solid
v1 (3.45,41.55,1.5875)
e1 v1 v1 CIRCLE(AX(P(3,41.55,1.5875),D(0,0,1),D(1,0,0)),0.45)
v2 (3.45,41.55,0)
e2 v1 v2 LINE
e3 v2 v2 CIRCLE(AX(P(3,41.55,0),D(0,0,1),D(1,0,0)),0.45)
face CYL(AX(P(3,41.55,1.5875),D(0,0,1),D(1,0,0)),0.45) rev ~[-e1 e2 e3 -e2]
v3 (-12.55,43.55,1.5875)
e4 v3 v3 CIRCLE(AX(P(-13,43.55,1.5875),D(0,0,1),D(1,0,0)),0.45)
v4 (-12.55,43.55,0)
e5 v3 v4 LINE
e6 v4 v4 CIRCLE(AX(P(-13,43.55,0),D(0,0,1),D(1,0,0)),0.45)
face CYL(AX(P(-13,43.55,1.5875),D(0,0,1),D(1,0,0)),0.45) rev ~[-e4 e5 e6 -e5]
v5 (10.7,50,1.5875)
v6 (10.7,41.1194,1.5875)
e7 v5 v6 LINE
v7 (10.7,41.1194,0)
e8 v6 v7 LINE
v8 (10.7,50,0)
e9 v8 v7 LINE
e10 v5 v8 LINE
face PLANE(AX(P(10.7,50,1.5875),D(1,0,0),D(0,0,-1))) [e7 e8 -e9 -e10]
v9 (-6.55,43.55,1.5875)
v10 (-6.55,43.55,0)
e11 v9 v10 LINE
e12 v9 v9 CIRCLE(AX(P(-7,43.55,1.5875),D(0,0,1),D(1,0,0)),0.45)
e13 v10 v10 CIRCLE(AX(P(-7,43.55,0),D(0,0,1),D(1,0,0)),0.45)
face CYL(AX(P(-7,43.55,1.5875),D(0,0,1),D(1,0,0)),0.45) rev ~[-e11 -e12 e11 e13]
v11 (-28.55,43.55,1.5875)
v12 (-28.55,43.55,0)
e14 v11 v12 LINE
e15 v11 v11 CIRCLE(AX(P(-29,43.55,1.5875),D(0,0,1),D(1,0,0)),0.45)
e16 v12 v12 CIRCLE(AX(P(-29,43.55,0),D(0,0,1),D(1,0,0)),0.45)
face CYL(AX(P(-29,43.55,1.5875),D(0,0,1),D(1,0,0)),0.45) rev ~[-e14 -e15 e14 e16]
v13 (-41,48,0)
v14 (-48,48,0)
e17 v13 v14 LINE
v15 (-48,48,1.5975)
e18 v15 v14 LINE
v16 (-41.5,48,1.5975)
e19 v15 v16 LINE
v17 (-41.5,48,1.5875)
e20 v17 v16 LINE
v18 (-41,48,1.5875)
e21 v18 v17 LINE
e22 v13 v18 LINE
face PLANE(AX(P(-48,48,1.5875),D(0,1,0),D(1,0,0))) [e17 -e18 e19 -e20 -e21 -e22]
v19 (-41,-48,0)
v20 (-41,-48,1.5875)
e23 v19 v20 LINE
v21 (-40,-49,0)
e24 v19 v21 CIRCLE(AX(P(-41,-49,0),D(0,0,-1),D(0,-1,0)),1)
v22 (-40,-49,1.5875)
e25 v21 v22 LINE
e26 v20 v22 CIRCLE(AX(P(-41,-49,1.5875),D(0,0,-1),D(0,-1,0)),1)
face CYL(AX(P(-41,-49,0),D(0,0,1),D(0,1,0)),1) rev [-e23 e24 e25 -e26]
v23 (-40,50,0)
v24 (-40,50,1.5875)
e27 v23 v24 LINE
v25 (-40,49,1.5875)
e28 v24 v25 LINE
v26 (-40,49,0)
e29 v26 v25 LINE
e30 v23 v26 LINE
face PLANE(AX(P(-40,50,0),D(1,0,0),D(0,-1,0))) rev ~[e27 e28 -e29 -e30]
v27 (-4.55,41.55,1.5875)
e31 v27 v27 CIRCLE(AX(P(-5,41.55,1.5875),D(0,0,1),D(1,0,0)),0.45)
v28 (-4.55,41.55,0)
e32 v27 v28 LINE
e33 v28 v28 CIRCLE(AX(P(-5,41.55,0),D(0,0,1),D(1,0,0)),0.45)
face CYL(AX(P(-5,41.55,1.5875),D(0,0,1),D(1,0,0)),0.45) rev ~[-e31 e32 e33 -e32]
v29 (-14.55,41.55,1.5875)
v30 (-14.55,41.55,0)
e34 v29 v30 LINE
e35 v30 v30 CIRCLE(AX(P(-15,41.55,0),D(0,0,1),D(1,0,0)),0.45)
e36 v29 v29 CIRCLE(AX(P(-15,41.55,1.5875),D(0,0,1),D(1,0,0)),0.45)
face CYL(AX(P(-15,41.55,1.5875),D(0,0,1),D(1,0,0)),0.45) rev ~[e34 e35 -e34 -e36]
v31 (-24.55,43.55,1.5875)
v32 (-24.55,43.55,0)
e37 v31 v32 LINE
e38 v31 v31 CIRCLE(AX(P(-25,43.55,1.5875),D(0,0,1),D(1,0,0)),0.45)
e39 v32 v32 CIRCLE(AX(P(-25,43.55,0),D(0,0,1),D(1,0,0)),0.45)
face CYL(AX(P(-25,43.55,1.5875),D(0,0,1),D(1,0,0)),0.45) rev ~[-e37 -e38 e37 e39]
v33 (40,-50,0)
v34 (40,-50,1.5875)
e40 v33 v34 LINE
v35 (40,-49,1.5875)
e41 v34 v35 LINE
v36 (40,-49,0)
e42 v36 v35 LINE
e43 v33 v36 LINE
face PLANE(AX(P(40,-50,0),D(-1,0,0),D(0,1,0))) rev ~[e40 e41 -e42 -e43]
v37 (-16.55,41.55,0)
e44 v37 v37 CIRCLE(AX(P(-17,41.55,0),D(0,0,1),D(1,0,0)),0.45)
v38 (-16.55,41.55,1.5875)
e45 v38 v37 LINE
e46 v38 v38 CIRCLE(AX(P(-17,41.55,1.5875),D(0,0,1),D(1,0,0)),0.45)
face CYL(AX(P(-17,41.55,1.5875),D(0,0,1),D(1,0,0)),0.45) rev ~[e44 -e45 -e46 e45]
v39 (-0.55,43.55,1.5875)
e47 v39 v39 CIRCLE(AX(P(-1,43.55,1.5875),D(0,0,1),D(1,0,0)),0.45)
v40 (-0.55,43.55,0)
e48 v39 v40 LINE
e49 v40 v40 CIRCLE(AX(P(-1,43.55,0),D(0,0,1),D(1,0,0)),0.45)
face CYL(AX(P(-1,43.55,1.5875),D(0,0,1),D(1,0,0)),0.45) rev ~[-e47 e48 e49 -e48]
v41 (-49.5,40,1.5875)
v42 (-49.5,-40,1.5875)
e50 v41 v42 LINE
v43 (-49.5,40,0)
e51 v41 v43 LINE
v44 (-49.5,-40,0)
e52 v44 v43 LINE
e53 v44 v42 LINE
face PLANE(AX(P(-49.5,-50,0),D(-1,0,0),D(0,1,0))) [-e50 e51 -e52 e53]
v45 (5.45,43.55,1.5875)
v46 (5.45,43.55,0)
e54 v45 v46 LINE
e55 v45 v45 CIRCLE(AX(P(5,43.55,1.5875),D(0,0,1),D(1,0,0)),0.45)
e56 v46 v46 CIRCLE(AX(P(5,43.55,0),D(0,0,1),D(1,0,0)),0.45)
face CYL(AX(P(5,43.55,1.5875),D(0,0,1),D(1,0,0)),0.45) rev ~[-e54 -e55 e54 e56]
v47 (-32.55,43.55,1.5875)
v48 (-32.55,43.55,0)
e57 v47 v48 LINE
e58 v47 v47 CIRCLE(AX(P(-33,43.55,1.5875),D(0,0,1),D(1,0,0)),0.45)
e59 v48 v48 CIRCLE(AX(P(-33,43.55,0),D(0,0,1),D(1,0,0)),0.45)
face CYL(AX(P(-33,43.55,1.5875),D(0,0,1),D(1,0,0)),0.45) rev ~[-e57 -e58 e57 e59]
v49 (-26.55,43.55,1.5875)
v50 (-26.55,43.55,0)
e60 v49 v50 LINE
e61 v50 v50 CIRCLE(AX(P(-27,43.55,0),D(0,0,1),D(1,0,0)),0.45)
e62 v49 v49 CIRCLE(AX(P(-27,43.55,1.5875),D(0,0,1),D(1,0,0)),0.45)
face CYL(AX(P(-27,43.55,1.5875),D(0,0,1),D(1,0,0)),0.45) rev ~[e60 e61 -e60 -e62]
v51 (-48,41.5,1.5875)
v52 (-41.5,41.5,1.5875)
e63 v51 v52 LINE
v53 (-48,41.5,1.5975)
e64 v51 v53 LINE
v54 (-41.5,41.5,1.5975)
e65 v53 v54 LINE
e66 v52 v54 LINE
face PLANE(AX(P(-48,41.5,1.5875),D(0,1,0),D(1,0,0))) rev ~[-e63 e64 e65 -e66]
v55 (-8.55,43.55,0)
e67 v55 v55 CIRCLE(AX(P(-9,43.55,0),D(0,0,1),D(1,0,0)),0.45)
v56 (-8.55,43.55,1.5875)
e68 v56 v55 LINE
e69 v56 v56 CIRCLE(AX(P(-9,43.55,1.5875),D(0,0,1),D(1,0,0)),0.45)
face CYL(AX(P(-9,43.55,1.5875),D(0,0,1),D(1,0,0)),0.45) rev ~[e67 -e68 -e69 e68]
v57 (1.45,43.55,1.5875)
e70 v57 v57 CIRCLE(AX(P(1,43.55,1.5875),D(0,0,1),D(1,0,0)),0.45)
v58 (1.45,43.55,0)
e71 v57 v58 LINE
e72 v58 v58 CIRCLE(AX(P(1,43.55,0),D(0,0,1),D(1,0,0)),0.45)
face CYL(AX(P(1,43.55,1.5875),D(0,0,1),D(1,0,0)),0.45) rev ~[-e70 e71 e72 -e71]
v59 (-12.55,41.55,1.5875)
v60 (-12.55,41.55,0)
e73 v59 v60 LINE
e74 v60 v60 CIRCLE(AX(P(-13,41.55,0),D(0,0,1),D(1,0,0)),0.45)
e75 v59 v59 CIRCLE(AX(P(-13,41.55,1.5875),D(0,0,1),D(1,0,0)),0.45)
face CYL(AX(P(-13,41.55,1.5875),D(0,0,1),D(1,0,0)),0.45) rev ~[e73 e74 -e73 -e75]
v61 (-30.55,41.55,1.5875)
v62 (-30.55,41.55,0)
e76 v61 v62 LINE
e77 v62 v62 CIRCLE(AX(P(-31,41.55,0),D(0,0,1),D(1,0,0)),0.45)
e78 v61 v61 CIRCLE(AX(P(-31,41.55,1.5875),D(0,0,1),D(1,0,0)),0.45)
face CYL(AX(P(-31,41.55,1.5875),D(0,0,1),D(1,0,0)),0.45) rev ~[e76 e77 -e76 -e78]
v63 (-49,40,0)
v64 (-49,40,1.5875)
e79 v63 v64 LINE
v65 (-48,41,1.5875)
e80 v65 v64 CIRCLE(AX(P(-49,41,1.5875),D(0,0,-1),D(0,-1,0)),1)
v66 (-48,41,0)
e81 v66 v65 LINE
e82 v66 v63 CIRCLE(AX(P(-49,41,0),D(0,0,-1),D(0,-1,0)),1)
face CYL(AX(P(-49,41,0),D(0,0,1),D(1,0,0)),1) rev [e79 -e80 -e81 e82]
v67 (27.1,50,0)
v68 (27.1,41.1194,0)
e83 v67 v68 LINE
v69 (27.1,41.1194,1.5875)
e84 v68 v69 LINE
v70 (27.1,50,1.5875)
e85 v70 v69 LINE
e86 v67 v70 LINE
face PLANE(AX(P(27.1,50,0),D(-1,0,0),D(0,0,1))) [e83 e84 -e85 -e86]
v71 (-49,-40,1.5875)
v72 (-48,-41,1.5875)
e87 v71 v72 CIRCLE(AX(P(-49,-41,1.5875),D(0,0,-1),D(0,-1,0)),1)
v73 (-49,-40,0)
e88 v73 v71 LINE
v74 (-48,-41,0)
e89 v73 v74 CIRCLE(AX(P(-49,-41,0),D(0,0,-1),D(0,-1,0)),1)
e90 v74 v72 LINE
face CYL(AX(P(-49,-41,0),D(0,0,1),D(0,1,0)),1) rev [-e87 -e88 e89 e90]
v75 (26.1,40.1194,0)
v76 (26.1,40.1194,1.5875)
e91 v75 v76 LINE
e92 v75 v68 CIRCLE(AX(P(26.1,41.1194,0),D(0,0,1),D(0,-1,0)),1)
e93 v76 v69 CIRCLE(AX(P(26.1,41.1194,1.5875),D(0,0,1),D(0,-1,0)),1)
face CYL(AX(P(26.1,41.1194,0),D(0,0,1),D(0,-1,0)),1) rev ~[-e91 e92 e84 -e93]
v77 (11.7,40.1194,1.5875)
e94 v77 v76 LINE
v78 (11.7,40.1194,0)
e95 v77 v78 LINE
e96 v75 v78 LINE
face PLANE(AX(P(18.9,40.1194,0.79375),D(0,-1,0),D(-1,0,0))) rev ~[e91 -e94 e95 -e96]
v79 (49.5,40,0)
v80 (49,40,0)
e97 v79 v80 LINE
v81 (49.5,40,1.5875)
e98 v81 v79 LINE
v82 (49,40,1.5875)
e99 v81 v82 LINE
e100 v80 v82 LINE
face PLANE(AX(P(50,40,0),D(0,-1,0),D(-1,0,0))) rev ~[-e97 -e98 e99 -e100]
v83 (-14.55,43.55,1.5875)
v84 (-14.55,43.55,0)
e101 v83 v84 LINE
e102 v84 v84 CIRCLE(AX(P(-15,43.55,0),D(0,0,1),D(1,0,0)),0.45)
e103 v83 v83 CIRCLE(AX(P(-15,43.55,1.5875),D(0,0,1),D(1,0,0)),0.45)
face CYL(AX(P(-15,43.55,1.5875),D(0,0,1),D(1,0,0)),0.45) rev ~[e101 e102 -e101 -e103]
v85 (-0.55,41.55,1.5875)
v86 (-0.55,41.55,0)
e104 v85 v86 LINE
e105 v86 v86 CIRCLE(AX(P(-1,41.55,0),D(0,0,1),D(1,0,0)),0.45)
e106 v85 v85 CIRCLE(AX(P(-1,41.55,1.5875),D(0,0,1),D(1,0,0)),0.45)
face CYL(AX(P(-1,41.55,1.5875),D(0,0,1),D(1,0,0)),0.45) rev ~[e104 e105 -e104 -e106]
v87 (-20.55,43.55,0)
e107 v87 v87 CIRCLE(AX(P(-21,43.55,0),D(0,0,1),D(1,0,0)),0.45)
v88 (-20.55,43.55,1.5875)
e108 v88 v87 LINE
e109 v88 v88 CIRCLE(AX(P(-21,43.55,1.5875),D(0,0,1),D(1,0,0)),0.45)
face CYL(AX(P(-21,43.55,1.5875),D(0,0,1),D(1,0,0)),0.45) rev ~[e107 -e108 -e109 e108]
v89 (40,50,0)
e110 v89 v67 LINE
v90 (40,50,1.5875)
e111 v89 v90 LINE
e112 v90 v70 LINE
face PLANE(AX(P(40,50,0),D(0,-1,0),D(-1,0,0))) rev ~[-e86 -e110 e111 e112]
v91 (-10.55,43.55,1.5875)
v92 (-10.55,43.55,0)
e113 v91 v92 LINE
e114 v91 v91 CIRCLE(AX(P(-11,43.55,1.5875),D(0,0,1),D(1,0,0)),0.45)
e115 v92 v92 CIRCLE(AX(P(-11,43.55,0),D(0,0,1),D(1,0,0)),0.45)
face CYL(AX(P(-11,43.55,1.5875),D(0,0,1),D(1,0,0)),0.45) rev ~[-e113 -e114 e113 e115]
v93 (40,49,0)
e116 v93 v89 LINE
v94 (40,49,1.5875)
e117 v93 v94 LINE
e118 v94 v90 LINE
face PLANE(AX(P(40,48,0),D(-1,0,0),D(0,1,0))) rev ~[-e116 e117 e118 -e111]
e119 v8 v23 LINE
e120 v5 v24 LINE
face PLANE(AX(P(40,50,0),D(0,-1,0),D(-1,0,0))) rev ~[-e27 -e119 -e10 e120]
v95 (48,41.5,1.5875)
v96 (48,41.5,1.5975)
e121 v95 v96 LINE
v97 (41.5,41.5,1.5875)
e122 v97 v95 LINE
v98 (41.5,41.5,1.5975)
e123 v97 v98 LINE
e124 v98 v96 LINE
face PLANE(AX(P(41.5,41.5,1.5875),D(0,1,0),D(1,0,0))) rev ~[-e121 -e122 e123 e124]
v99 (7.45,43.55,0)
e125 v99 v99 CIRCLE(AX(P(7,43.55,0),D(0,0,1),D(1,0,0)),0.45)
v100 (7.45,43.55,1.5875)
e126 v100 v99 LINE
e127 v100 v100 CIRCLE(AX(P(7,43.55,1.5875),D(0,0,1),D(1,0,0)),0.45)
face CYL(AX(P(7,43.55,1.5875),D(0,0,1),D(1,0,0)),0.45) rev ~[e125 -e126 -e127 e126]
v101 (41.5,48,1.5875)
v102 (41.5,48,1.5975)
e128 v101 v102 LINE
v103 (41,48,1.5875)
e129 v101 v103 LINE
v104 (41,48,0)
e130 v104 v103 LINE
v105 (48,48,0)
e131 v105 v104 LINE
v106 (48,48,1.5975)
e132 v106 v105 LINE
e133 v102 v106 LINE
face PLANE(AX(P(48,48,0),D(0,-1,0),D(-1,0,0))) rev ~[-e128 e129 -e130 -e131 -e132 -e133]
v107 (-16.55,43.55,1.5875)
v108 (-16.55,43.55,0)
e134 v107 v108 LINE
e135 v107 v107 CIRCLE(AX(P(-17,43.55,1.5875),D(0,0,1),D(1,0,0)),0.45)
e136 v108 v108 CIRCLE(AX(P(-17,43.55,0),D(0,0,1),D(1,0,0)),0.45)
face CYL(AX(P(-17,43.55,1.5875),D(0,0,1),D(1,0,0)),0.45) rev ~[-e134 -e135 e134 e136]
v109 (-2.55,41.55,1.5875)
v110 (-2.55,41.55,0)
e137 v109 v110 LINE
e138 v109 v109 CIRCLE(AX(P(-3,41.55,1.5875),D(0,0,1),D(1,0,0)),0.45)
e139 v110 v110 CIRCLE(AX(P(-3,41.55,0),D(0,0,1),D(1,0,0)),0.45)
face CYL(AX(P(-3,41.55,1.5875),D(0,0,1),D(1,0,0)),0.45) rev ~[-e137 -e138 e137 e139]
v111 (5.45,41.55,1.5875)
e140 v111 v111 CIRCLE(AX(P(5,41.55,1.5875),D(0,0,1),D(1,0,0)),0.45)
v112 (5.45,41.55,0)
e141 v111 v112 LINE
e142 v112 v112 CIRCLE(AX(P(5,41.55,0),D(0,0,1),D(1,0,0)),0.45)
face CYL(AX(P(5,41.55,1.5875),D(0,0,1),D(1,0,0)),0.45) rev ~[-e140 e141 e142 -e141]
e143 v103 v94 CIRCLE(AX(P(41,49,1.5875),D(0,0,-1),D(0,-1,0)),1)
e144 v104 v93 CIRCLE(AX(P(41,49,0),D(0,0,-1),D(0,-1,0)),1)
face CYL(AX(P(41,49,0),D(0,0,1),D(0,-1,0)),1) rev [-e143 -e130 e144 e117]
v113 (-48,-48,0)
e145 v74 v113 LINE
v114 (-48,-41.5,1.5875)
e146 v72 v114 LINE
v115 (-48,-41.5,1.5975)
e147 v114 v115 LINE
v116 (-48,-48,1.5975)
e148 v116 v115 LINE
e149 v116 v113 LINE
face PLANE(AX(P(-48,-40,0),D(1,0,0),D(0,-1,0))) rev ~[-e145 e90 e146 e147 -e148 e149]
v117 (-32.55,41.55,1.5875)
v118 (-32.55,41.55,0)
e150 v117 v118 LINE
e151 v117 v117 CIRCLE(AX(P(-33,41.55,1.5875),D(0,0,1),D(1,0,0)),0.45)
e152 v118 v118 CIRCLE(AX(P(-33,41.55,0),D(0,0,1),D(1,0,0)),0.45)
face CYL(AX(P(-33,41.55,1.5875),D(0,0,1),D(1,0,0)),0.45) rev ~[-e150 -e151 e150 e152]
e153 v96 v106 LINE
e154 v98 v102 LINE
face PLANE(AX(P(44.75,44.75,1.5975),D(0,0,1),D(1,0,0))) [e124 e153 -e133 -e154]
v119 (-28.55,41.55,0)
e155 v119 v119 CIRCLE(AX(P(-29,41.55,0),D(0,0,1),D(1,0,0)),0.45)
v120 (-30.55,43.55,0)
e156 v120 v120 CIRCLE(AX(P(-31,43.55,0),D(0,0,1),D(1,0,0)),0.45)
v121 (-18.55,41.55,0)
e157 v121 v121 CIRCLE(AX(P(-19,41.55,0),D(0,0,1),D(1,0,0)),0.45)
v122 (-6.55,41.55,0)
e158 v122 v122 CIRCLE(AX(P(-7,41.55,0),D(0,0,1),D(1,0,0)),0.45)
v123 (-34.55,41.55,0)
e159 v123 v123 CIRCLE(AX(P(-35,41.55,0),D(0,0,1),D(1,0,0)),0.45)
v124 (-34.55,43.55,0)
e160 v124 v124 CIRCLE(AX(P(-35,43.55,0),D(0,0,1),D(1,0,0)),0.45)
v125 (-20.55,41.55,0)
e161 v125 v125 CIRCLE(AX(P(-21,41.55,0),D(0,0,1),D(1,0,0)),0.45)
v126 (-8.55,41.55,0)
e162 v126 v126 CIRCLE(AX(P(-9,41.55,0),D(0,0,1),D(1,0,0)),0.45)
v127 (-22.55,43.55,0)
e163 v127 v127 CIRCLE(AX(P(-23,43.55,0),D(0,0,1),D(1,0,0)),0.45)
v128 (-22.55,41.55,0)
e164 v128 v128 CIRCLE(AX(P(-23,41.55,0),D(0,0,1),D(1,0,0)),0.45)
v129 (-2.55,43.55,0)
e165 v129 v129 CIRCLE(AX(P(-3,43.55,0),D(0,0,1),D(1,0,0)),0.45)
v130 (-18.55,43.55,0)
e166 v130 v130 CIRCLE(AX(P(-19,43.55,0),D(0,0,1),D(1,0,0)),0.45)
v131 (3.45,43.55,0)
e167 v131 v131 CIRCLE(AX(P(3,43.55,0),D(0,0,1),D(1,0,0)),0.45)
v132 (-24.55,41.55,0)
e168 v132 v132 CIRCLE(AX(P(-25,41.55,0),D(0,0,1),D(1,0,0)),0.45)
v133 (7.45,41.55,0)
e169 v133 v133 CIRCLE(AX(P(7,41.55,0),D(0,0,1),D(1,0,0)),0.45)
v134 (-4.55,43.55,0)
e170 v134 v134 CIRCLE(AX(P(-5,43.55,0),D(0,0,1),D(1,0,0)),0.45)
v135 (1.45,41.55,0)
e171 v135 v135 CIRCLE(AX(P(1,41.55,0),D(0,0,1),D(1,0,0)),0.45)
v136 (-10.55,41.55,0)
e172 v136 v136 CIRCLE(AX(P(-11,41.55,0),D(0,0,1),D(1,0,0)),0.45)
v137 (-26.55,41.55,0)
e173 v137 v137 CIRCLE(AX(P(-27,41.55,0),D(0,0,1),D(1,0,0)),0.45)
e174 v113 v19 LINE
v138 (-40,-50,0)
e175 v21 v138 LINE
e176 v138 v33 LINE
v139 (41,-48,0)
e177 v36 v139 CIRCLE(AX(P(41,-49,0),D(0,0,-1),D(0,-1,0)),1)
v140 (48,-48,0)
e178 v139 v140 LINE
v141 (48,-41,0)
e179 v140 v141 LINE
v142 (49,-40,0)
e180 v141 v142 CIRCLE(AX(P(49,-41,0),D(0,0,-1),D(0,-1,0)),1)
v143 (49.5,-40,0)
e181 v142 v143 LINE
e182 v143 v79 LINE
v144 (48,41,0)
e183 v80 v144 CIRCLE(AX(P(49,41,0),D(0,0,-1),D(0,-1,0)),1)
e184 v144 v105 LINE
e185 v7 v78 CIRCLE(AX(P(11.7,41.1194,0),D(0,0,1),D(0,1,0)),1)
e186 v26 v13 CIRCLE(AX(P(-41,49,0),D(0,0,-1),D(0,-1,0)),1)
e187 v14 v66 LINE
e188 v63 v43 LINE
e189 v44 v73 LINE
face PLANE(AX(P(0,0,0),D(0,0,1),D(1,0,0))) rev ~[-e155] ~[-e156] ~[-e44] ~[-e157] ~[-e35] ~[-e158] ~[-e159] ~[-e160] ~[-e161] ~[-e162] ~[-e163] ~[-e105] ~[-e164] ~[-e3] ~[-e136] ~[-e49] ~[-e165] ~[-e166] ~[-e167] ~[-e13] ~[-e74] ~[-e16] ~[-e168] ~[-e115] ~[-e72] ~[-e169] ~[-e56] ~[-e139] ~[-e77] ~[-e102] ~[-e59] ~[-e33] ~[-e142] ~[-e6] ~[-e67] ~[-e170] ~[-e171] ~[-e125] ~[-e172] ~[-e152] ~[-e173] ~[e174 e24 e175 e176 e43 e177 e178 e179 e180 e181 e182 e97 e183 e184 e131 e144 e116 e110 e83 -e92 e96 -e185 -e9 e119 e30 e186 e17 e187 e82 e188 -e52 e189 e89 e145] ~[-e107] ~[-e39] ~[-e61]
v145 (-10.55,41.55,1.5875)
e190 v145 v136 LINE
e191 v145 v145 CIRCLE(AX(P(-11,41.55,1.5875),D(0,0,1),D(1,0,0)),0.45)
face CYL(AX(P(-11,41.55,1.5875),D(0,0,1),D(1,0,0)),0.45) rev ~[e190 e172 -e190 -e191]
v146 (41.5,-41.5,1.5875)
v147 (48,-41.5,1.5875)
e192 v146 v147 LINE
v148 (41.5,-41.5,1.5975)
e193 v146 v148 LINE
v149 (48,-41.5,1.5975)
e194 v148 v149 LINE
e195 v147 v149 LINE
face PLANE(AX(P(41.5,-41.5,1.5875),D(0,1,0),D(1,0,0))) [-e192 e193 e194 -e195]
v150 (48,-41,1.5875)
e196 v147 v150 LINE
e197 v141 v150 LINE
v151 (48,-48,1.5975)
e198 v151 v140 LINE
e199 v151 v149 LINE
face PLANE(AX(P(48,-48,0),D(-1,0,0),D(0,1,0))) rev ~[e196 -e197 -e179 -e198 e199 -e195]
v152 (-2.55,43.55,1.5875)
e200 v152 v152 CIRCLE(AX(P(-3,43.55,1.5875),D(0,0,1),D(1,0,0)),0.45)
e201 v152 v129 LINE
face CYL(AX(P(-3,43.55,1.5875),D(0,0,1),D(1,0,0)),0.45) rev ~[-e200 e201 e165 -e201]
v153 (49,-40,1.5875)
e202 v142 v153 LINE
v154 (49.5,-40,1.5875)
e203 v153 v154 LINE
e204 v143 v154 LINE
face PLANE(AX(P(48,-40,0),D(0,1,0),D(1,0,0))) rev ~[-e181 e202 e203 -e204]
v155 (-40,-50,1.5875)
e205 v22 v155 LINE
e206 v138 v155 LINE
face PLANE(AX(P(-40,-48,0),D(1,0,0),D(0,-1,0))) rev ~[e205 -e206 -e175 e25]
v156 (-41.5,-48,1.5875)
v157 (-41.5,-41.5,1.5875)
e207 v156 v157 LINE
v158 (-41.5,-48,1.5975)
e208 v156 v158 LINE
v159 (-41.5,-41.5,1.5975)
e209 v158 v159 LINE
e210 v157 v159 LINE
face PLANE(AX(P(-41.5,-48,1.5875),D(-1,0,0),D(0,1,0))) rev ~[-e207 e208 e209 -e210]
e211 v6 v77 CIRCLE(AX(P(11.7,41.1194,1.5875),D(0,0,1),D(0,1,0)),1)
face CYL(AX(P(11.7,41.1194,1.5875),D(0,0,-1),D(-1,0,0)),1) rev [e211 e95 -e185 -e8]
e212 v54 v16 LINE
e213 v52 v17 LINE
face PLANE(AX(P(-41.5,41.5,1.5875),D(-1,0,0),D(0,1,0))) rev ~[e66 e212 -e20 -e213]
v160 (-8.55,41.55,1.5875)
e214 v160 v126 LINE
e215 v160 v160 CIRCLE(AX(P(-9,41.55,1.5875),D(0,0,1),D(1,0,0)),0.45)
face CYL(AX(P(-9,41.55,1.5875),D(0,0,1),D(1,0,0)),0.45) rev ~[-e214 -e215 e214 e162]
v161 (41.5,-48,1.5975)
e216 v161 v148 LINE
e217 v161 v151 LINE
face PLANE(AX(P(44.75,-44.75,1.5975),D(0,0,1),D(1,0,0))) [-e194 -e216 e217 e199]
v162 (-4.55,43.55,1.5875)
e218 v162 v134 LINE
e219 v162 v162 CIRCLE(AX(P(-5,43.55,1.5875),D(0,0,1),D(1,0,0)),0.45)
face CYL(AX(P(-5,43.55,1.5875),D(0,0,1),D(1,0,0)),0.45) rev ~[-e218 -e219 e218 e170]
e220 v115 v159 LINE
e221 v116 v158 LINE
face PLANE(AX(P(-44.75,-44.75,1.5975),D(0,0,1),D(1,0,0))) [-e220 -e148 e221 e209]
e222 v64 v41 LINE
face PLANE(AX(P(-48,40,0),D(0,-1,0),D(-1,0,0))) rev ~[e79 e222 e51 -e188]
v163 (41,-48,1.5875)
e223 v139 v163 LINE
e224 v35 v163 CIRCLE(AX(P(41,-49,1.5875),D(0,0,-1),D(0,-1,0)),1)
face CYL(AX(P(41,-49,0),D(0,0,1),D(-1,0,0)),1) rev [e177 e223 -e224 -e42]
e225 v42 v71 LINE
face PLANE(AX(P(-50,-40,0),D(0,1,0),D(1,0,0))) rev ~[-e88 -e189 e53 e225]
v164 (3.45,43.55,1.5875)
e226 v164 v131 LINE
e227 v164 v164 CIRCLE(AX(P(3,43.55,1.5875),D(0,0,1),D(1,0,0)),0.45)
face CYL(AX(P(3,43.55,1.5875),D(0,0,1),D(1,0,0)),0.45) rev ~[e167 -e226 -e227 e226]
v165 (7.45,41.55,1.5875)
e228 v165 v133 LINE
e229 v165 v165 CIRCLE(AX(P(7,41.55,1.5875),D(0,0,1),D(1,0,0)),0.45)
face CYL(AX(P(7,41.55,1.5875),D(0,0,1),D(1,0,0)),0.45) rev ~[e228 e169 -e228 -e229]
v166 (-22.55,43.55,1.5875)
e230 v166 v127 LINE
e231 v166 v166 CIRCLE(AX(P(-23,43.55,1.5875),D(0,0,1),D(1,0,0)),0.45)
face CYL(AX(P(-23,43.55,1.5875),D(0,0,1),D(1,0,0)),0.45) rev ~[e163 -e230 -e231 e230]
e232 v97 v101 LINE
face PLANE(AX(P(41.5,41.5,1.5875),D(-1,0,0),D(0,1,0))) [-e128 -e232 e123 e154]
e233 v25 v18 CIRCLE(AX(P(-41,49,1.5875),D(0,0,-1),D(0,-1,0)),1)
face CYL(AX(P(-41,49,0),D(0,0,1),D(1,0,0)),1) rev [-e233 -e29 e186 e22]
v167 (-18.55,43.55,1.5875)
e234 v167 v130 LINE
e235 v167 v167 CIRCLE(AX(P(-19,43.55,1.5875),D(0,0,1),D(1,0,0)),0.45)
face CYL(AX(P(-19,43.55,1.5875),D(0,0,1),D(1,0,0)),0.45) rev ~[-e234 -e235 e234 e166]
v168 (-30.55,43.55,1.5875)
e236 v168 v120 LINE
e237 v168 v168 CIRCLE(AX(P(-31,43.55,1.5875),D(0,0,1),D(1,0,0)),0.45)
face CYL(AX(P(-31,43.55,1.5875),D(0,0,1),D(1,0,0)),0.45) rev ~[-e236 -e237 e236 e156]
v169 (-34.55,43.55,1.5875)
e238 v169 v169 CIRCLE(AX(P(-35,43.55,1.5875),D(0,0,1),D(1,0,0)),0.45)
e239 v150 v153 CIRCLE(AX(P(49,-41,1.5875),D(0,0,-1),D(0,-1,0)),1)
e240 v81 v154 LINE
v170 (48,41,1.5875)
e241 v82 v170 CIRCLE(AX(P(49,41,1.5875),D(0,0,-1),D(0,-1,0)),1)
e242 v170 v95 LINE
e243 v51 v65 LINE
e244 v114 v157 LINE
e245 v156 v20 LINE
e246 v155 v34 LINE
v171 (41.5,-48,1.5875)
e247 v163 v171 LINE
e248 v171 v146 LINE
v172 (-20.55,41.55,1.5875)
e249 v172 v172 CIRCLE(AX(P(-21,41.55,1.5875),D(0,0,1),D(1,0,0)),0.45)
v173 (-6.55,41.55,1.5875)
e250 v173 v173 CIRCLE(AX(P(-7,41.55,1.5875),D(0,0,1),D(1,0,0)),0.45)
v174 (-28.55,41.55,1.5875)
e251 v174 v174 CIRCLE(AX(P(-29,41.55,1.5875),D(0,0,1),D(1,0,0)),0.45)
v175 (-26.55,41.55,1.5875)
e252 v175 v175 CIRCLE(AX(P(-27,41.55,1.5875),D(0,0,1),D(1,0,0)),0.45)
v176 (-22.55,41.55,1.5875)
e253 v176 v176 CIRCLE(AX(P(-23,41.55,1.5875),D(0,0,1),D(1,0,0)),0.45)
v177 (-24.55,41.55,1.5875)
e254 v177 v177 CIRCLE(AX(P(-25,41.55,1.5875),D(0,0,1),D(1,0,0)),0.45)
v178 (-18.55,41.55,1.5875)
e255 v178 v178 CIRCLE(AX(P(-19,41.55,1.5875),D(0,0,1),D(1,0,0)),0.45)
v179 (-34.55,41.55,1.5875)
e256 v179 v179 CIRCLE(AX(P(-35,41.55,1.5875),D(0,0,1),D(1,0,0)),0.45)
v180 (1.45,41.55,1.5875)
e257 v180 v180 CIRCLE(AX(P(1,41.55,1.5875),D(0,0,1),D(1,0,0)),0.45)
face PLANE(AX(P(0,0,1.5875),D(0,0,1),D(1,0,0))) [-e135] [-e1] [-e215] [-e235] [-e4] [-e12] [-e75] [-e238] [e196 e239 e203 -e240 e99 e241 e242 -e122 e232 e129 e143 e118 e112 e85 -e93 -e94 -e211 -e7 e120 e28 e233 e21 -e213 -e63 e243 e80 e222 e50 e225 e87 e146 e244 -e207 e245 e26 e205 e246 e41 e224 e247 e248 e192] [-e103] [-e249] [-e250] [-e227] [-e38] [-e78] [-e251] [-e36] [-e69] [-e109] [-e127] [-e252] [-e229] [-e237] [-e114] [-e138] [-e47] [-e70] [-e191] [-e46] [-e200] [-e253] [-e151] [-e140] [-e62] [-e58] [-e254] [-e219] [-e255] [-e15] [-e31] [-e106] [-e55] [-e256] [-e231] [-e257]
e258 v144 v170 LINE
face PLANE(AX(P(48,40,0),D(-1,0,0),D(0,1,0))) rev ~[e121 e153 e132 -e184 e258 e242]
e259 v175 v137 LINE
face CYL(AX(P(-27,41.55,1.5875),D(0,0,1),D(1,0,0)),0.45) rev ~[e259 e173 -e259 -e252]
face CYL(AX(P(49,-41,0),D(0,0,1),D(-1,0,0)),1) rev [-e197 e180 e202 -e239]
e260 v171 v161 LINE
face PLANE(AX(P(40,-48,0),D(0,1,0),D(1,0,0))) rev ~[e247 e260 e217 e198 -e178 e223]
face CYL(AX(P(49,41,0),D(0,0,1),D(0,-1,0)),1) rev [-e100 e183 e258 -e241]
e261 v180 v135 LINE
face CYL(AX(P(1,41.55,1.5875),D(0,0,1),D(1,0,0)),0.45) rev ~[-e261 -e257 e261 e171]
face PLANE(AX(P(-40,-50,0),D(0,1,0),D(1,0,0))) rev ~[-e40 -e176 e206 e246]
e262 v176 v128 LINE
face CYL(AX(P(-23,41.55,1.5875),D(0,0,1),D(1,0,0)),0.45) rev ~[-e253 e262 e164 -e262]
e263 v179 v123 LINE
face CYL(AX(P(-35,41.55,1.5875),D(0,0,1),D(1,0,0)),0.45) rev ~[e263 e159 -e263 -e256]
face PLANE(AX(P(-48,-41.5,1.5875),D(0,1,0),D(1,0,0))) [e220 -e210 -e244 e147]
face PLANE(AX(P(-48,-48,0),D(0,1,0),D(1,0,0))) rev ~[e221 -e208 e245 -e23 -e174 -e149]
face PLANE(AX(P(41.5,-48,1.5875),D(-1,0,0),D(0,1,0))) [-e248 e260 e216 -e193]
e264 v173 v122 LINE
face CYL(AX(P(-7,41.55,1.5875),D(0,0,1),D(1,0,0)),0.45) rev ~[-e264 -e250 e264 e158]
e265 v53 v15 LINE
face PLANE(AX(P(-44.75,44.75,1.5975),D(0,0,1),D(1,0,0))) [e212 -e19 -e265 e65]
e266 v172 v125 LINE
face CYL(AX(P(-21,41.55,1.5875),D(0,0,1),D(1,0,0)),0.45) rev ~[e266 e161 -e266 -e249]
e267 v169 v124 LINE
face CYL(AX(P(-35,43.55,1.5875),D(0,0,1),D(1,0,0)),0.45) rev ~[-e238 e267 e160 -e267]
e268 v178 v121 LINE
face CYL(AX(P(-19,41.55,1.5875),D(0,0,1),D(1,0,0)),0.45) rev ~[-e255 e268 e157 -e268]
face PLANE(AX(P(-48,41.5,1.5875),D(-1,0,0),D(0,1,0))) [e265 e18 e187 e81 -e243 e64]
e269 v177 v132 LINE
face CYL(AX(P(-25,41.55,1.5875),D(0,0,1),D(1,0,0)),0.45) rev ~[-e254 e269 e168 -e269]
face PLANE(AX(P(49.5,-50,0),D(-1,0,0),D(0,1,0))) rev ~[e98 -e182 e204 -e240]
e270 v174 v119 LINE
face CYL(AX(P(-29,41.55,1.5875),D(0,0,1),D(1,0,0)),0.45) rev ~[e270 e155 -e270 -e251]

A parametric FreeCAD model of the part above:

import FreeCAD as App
import Part
import Sketcher
Q = App.Units.Quantity


def edges_at(feature, points):
    """Names of the edges that pass closest to the given points."""
    edges = feature.Shape.Edges
    near = lambda p: min(range(len(edges)), key=lambda i: edges[i].distToShape(Part.Vertex(*p))[0])
    return sorted({f"Edge{near(p) + 1}" for p in points})

doc = App.newDocument("Part")
params = doc.addObject("Spreadsheet::Sheet", "Params")
for row, (alias, value) in enumerate([
    ("sketch1_width", "80 mm"),
    ("sketch1_width2", "8 mm"),
    ("sketch1_width3", "2 mm"),
    ("pad1_length", "1.5875 mm"),
    ("fillet_radius", "1 mm"),
    ("sketch2_diameter", "0.9 mm"),
    ("sketch3_width", "16.4 mm"),
    ("pocket2_length", "9.8806 mm"),
    ("fillet2_radius", "1 mm"),
    ("sketch4_width", "6.5 mm"),
    ("pad2_length", "0.01 mm"),
    ("sketch5_width", "99 mm"),
    ("sketch5_height", "100 mm"),
], start=1):
    params.set(f"A{row}", alias)
    params.set(f"B{row}", "=" + value)
    params.setAlias(f"B{row}", alias)

body = doc.addObject("PartDesign::Body", "Body")

sketch1 = body.newObject("Sketcher::SketchObject", "Sketch")
sketch1.AttachmentSupport = (doc.getObject("XY_Plane"), [""])
sketch1.MapMode = "FlatFace"
sketch1.addGeometry([
    Part.LineSegment(App.Vector(40, 50, 0), App.Vector(-40, 50, 0)),
    Part.LineSegment(App.Vector(-40, 50, 0), App.Vector(-40, 48, 0)),
    Part.LineSegment(App.Vector(-40, 48, 0), App.Vector(-48, 48, 0)),
    Part.LineSegment(App.Vector(-48, 48, 0), App.Vector(-48, 40, 0)),
    Part.LineSegment(App.Vector(-48, 40, 0), App.Vector(-50, 40, 0)),
    Part.LineSegment(App.Vector(-50, 40, 0), App.Vector(-50, -40, 0)),
    Part.LineSegment(App.Vector(-50, -40, 0), App.Vector(-48, -40, 0)),
    Part.LineSegment(App.Vector(-48, -40, 0), App.Vector(-48, -48, 0)),
    Part.LineSegment(App.Vector(-48, -48, 0), App.Vector(-40, -48, 0)),
    Part.LineSegment(App.Vector(-40, -48, 0), App.Vector(-40, -50, 0)),
    Part.LineSegment(App.Vector(-40, -50, 0), App.Vector(40, -50, 0)),
    Part.LineSegment(App.Vector(40, -50, 0), App.Vector(40, -48, 0)),
    Part.LineSegment(App.Vector(40, -48, 0), App.Vector(48, -48, 0)),
    Part.LineSegment(App.Vector(48, -48, 0), App.Vector(48, -40, 0)),
    Part.LineSegment(App.Vector(48, -40, 0), App.Vector(50, -40, 0)),
    Part.LineSegment(App.Vector(50, -40, 0), App.Vector(50, 40, 0)),
    Part.LineSegment(App.Vector(50, 40, 0), App.Vector(48, 40, 0)),
    Part.LineSegment(App.Vector(48, 40, 0), App.Vector(48, 48, 0)),
    Part.LineSegment(App.Vector(48, 48, 0), App.Vector(40, 48, 0)),
    Part.LineSegment(App.Vector(40, 48, 0), App.Vector(40, 50, 0)),
], False)
sketch1.addConstraint([
    Sketcher.Constraint("Coincident", 0, 2, 1, 1),
    Sketcher.Constraint("Coincident", 1, 2, 2, 1),
    Sketcher.Constraint("Coincident", 2, 2, 3, 1),
    Sketcher.Constraint("Coincident", 3, 2, 4, 1),
    Sketcher.Constraint("Coincident", 4, 2, 5, 1),
    Sketcher.Constraint("Coincident", 5, 2, 6, 1),
    Sketcher.Constraint("Coincident", 6, 2, 7, 1),
    Sketcher.Constraint("Coincident", 7, 2, 8, 1),
    Sketcher.Constraint("Coincident", 8, 2, 9, 1),
    Sketcher.Constraint("Coincident", 9, 2, 10, 1),
    Sketcher.Constraint("Coincident", 10, 2, 11, 1),
    Sketcher.Constraint("Coincident", 11, 2, 12, 1),
    Sketcher.Constraint("Coincident", 12, 2, 13, 1),
    Sketcher.Constraint("Coincident", 13, 2, 14, 1),
    Sketcher.Constraint("Coincident", 14, 2, 15, 1),
    Sketcher.Constraint("Coincident", 15, 2, 16, 1),
    Sketcher.Constraint("Coincident", 16, 2, 17, 1),
    Sketcher.Constraint("Coincident", 17, 2, 18, 1),
    Sketcher.Constraint("Coincident", 18, 2, 19, 1),
    Sketcher.Constraint("Coincident", 19, 2, 0, 1),
    Sketcher.Constraint("Horizontal", 0),
    Sketcher.Constraint("Vertical", 1),
    Sketcher.Constraint("Horizontal", 2),
    Sketcher.Constraint("Vertical", 3),
    Sketcher.Constraint("Horizontal", 4),
    Sketcher.Constraint("Vertical", 5),
    Sketcher.Constraint("Horizontal", 6),
    Sketcher.Constraint("Vertical", 7),
    Sketcher.Constraint("Horizontal", 8),
    Sketcher.Constraint("Vertical", 9),
    Sketcher.Constraint("Horizontal", 10),
    Sketcher.Constraint("Vertical", 11),
    Sketcher.Constraint("Horizontal", 12),
    Sketcher.Constraint("Vertical", 13),
    Sketcher.Constraint("Horizontal", 14),
    Sketcher.Constraint("Vertical", 15),
    Sketcher.Constraint("Horizontal", 16),
    Sketcher.Constraint("Vertical", 17),
    Sketcher.Constraint("Horizontal", 18),
    Sketcher.Constraint("Vertical", 19),
    Sketcher.Constraint("Symmetric", 0, 2, 10, 2, -1, 1),
    Sketcher.Constraint("Symmetric", 2, 2, 12, 2, -1, 1),
    Sketcher.Constraint("Symmetric", 4, 2, 14, 2, -1, 1),
    Sketcher.Constraint("Symmetric", 6, 2, 16, 2, -1, 1),
    Sketcher.Constraint("Symmetric", 8, 2, 18, 2, -1, 1),
    Sketcher.Constraint("Symmetric", 8, 2, 11, 2, -2),
    Sketcher.Constraint("Symmetric", 6, 2, 13, 2, -2),
    Sketcher.Constraint("Equal", 16, 1),
    Sketcher.Constraint("Equal", 18, 3),
    Sketcher.Constraint("Equal", 10, 5),
    Sketcher.Constraint("DistanceX", 0, 2, 0, 1, Q("80 mm")),
    Sketcher.Constraint("DistanceX", 2, 2, 2, 1, Q("8 mm")),
    Sketcher.Constraint("DistanceX", 4, 2, 4, 1, Q("2 mm")),
])
sketch1.setExpression("Constraints[50]", "Params.sketch1_width")
sketch1.setExpression("Constraints[51]", "Params.sketch1_width2")
sketch1.setExpression("Constraints[52]", "Params.sketch1_width3")
pad1 = body.newObject("PartDesign::Pad", "Pad")
pad1.Profile = sketch1
pad1.setExpression("Length", "Params.pad1_length")
doc.recompute()

fillet = body.newObject("PartDesign::Fillet", "Fillet")
fillet.Base = (pad1, edges_at(pad1, [
    (-48, -40, 0.794),
    (-48, 40, 0.794),
    (-40, 48, 0.794),
    (40, 48, 0.794),
    (48, 40, 0.794),
    (48, -40, 0.794),
    (40, -48, 0.794),
    (-40, -48, 0.794),
]))
fillet.setExpression("Radius", "Params.fillet_radius")

sketch2 = body.newObject("Sketcher::SketchObject", "Sketch001")
sketch2.AttachmentSupport = (doc.getObject("XY_Plane"), [""])
sketch2.MapMode = "FlatFace"
sketch2.AttachmentOffset = App.Placement(App.Vector(0, 0, 1.5875), App.Rotation())
sketch2.addGeometry([
    Part.Circle(App.Vector(-35, 43.55, 0), App.Vector(0, 0, 1), 0.45),
    Part.Circle(App.Vector(-33, 43.55, 0), App.Vector(0, 0, 1), 0.45),
    Part.Circle(App.Vector(-31, 43.55, 0), App.Vector(0, 0, 1), 0.45),
    Part.Circle(App.Vector(-29, 43.55, 0), App.Vector(0, 0, 1), 0.45),
    Part.Circle(App.Vector(-27, 43.55, 0), App.Vector(0, 0, 1), 0.45),
    Part.Circle(App.Vector(-25, 43.55, 0), App.Vector(0, 0, 1), 0.45),
    Part.Circle(App.Vector(-23, 43.55, 0), App.Vector(0, 0, 1), 0.45),
    Part.Circle(App.Vector(-21, 43.55, 0), App.Vector(0, 0, 1), 0.45),
    Part.Circle(App.Vector(-19, 43.55, 0), App.Vector(0, 0, 1), 0.45),
    Part.Circle(App.Vector(-17, 43.55, 0), App.Vector(0, 0, 1), 0.45),
    Part.Circle(App.Vector(-15, 43.55, 0), App.Vector(0, 0, 1), 0.45),
    Part.Circle(App.Vector(-13, 43.55, 0), App.Vector(0, 0, 1), 0.45),
    Part.Circle(App.Vector(-11, 43.55, 0), App.Vector(0, 0, 1), 0.45),
    Part.Circle(App.Vector(-9, 43.55, 0), App.Vector(0, 0, 1), 0.45),
    Part.Circle(App.Vector(-7, 43.55, 0), App.Vector(0, 0, 1), 0.45),
    Part.Circle(App.Vector(-5, 43.55, 0), App.Vector(0, 0, 1), 0.45),
    Part.Circle(App.Vector(-3, 43.55, 0), App.Vector(0, 0, 1), 0.45),
    Part.Circle(App.Vector(-1, 43.55, 0), App.Vector(0, 0, 1), 0.45),
    Part.Circle(App.Vector(1, 43.55, 0), App.Vector(0, 0, 1), 0.45),
    Part.Circle(App.Vector(3, 43.55, 0), App.Vector(0, 0, 1), 0.45),
    Part.Circle(App.Vector(5, 43.55, 0), App.Vector(0, 0, 1), 0.45),
    Part.Circle(App.Vector(7, 43.55, 0), App.Vector(0, 0, 1), 0.45),
    Part.Circle(App.Vector(-33, 41.55, 0), App.Vector(0, 0, 1), 0.45),
    Part.Circle(App.Vector(-31, 41.55, 0), App.Vector(0, 0, 1), 0.45),
    Part.Circle(App.Vector(-29, 41.55, 0), App.Vector(0, 0, 1), 0.45),
    Part.Circle(App.Vector(-27, 41.55, 0), App.Vector(0, 0, 1), 0.45),
    Part.Circle(App.Vector(-25, 41.55, 0), App.Vector(0, 0, 1), 0.45),
    Part.Circle(App.Vector(-23, 41.55, 0), App.Vector(0, 0, 1), 0.45),
    Part.Circle(App.Vector(-21, 41.55, 0), App.Vector(0, 0, 1), 0.45),
    Part.Circle(App.Vector(-19, 41.55, 0), App.Vector(0, 0, 1), 0.45),
    Part.Circle(App.Vector(-17, 41.55, 0), App.Vector(0, 0, 1), 0.45),
    Part.Circle(App.Vector(-15, 41.55, 0), App.Vector(0, 0, 1), 0.45),
    Part.Circle(App.Vector(-13, 41.55, 0), App.Vector(0, 0, 1), 0.45),
    Part.Circle(App.Vector(-11, 41.55, 0), App.Vector(0, 0, 1), 0.45),
    Part.Circle(App.Vector(-9, 41.55, 0), App.Vector(0, 0, 1), 0.45),
    Part.Circle(App.Vector(-7, 41.55, 0), App.Vector(0, 0, 1), 0.45),
    Part.Circle(App.Vector(-5, 41.55, 0), App.Vector(0, 0, 1), 0.45),
    Part.Circle(App.Vector(-3, 41.55, 0), App.Vector(0, 0, 1), 0.45),
    Part.Circle(App.Vector(-1, 41.55, 0), App.Vector(0, 0, 1), 0.45),
    Part.Circle(App.Vector(1, 41.55, 0), App.Vector(0, 0, 1), 0.45),
    Part.Circle(App.Vector(3, 41.55, 0), App.Vector(0, 0, 1), 0.45),
    Part.Circle(App.Vector(5, 41.55, 0), App.Vector(0, 0, 1), 0.45),
    Part.Circle(App.Vector(7, 41.55, 0), App.Vector(0, 0, 1), 0.45),
    Part.Circle(App.Vector(-35, 41.55, 0), App.Vector(0, 0, 1), 0.45),
], False)
sketch2.addConstraint([
    Sketcher.Constraint("Equal", 0, 1),
    Sketcher.Constraint("Equal", 1, 2),
    Sketcher.Constraint("Equal", 2, 3),
    Sketcher.Constraint("Equal", 3, 4),
    Sketcher.Constraint("Equal", 4, 5),
    Sketcher.Constraint("Equal", 5, 6),
    Sketcher.Constraint("Equal", 6, 7),
    Sketcher.Constraint("Equal", 7, 8),
    Sketcher.Constraint("Equal", 8, 9),
    Sketcher.Constraint("Equal", 9, 10),
    Sketcher.Constraint("Equal", 10, 11),
    Sketcher.Constraint("Equal", 11, 12),
    Sketcher.Constraint("Equal", 12, 13),
    Sketcher.Constraint("Equal", 13, 14),
    Sketcher.Constraint("Equal", 14, 15),
    Sketcher.Constraint("Equal", 15, 16),
    Sketcher.Constraint("Equal", 16, 17),
    Sketcher.Constraint("Equal", 17, 18),
    Sketcher.Constraint("Equal", 18, 19),
    Sketcher.Constraint("Equal", 19, 20),
    Sketcher.Constraint("Equal", 20, 21),
    Sketcher.Constraint("Equal", 21, 22),
    Sketcher.Constraint("Equal", 22, 23),
    Sketcher.Constraint("Equal", 23, 24),
    Sketcher.Constraint("Equal", 24, 25),
    Sketcher.Constraint("Equal", 25, 26),
    Sketcher.Constraint("Equal", 26, 27),
    Sketcher.Constraint("Equal", 27, 28),
    Sketcher.Constraint("Equal", 28, 29),
    Sketcher.Constraint("Equal", 29, 30),
    Sketcher.Constraint("Equal", 30, 31),
    Sketcher.Constraint("Equal", 31, 32),
    Sketcher.Constraint("Equal", 32, 33),
    Sketcher.Constraint("Equal", 33, 34),
    Sketcher.Constraint("Equal", 34, 35),
    Sketcher.Constraint("Equal", 35, 36),
    Sketcher.Constraint("Equal", 36, 37),
    Sketcher.Constraint("Equal", 37, 38),
    Sketcher.Constraint("Equal", 38, 39),
    Sketcher.Constraint("Equal", 39, 40),
    Sketcher.Constraint("Equal", 40, 41),
    Sketcher.Constraint("Equal", 41, 42),
    Sketcher.Constraint("Equal", 42, 43),
    Sketcher.Constraint("Symmetric", 17, 3, 18, 3, -2),
    Sketcher.Constraint("Symmetric", 16, 3, 19, 3, -2),
    Sketcher.Constraint("Symmetric", 15, 3, 20, 3, -2),
    Sketcher.Constraint("Symmetric", 14, 3, 21, 3, -2),
    Sketcher.Constraint("Symmetric", 38, 3, 39, 3, -2),
    Sketcher.Constraint("Symmetric", 37, 3, 40, 3, -2),
    Sketcher.Constraint("Symmetric", 36, 3, 41, 3, -2),
    Sketcher.Constraint("Symmetric", 35, 3, 42, 3, -2),
    Sketcher.Constraint("Horizontal", 0, 3, 1, 3),
    Sketcher.Constraint("Horizontal", 1, 3, 2, 3),
    Sketcher.Constraint("Horizontal", 2, 3, 3, 3),
    Sketcher.Constraint("Horizontal", 3, 3, 4, 3),
    Sketcher.Constraint("Horizontal", 4, 3, 5, 3),
    Sketcher.Constraint("Horizontal", 5, 3, 6, 3),
    Sketcher.Constraint("Horizontal", 6, 3, 7, 3),
    Sketcher.Constraint("Horizontal", 7, 3, 8, 3),
    Sketcher.Constraint("Horizontal", 8, 3, 9, 3),
    Sketcher.Constraint("Horizontal", 9, 3, 10, 3),
    Sketcher.Constraint("Horizontal", 10, 3, 11, 3),
    Sketcher.Constraint("Horizontal", 11, 3, 12, 3),
    Sketcher.Constraint("Horizontal", 12, 3, 13, 3),
    Sketcher.Constraint("Horizontal", 13, 3, 14, 3),
    Sketcher.Constraint("Horizontal", 14, 3, 15, 3),
    Sketcher.Constraint("Horizontal", 15, 3, 16, 3),
    Sketcher.Constraint("Horizontal", 16, 3, 17, 3),
    Sketcher.Constraint("Horizontal", 22, 3, 23, 3),
    Sketcher.Constraint("Horizontal", 23, 3, 24, 3),
    Sketcher.Constraint("Horizontal", 24, 3, 25, 3),
    Sketcher.Constraint("Horizontal", 25, 3, 26, 3),
    Sketcher.Constraint("Horizontal", 26, 3, 27, 3),
    Sketcher.Constraint("Horizontal", 27, 3, 28, 3),
    Sketcher.Constraint("Horizontal", 28, 3, 29, 3),
    Sketcher.Constraint("Horizontal", 29, 3, 30, 3),
    Sketcher.Constraint("Horizontal", 30, 3, 31, 3),
    Sketcher.Constraint("Horizontal", 31, 3, 32, 3),
    Sketcher.Constraint("Horizontal", 32, 3, 33, 3),
    Sketcher.Constraint("Horizontal", 33, 3, 34, 3),
    Sketcher.Constraint("Horizontal", 34, 3, 35, 3),
    Sketcher.Constraint("Horizontal", 35, 3, 36, 3),
    Sketcher.Constraint("Horizontal", 36, 3, 37, 3),
    Sketcher.Constraint("Horizontal", 37, 3, 38, 3),
    Sketcher.Constraint("Horizontal", 42, 3, 43, 3),
    Sketcher.Constraint("Vertical", 1, 3, 22, 3),
    Sketcher.Constraint("Vertical", 2, 3, 23, 3),
    Sketcher.Constraint("Vertical", 3, 3, 24, 3),
    Sketcher.Constraint("Vertical", 4, 3, 25, 3),
    Sketcher.Constraint("Vertical", 5, 3, 26, 3),
    Sketcher.Constraint("Vertical", 6, 3, 27, 3),
    Sketcher.Constraint("Vertical", 7, 3, 28, 3),
    Sketcher.Constraint("Vertical", 8, 3, 29, 3),
    Sketcher.Constraint("Vertical", 9, 3, 30, 3),
    Sketcher.Constraint("Vertical", 10, 3, 31, 3),
    Sketcher.Constraint("Vertical", 11, 3, 32, 3),
    Sketcher.Constraint("Vertical", 12, 3, 33, 3),
    Sketcher.Constraint("Vertical", 13, 3, 34, 3),
    Sketcher.Constraint("Vertical", 14, 3, 35, 3),
    Sketcher.Constraint("Vertical", 15, 3, 36, 3),
    Sketcher.Constraint("Vertical", 16, 3, 37, 3),
    Sketcher.Constraint("Vertical", 17, 3, 38, 3),
    Sketcher.Constraint("Vertical", 0, 3, 43, 3),
    Sketcher.Constraint("Diameter", 0, Q("0.9 mm")),
    Sketcher.Constraint("DistanceX", 0, 3, -1, 1, Q("35 mm")),
    Sketcher.Constraint("DistanceX", 1, 3, -1, 1, Q("33 mm")),
    Sketcher.Constraint("DistanceX", 2, 3, -1, 1, Q("31 mm")),
    Sketcher.Constraint("DistanceX", 3, 3, -1, 1, Q("29 mm")),
    Sketcher.Constraint("DistanceX", 4, 3, -1, 1, Q("27 mm")),
    Sketcher.Constraint("DistanceX", 5, 3, -1, 1, Q("25 mm")),
    Sketcher.Constraint("DistanceX", 6, 3, -1, 1, Q("23 mm")),
    Sketcher.Constraint("DistanceX", 7, 3, -1, 1, Q("21 mm")),
    Sketcher.Constraint("DistanceX", 8, 3, -1, 1, Q("19 mm")),
    Sketcher.Constraint("DistanceX", 9, 3, -1, 1, Q("17 mm")),
    Sketcher.Constraint("DistanceX", 10, 3, -1, 1, Q("15 mm")),
    Sketcher.Constraint("DistanceX", 11, 3, -1, 1, Q("13 mm")),
    Sketcher.Constraint("DistanceX", 12, 3, -1, 1, Q("11 mm")),
    Sketcher.Constraint("DistanceX", 13, 3, -1, 1, Q("9 mm")),
    Sketcher.Constraint("DistanceX", 14, 3, -1, 1, Q("7 mm")),
    Sketcher.Constraint("DistanceX", 15, 3, -1, 1, Q("5 mm")),
    Sketcher.Constraint("DistanceX", 16, 3, -1, 1, Q("3 mm")),
    Sketcher.Constraint("DistanceX", 17, 3, -1, 1, Q("1 mm")),
    Sketcher.Constraint("DistanceY", 22, 3, 1, 3, Q("2 mm")),
    Sketcher.Constraint("DistanceY", -1, 1, 0, 3, Q("43.55 mm")),
])
sketch2.setExpression("Constraints[103]", "Params.sketch2_diameter")
pocket1 = body.newObject("PartDesign::Pocket", "Pocket")
pocket1.Profile = sketch2
pocket1.Type = "ThroughAll"

sketch3 = body.newObject("Sketcher::SketchObject", "Sketch002")
sketch3.AttachmentSupport = (doc.getObject("XZ_Plane"), [""])
sketch3.MapMode = "FlatFace"
sketch3.AttachmentOffset = App.Placement(App.Vector(0, 0, -50), App.Rotation())
sketch3.addGeometry([
    Part.LineSegment(App.Vector(27.1, 0, 0), App.Vector(10.7, 0, 0)),
    Part.LineSegment(App.Vector(10.7, 0, 0), App.Vector(10.7, 1.6, 0)),
    Part.LineSegment(App.Vector(10.7, 1.6, 0), App.Vector(27.1, 1.6, 0)),
    Part.LineSegment(App.Vector(27.1, 1.6, 0), App.Vector(27.1, 0, 0)),
], False)
sketch3.addConstraint([
    Sketcher.Constraint("Coincident", 0, 2, 1, 1),
    Sketcher.Constraint("Coincident", 1, 2, 2, 1),
    Sketcher.Constraint("Coincident", 2, 2, 3, 1),
    Sketcher.Constraint("Coincident", 3, 2, 0, 1),
    Sketcher.Constraint("Horizontal", 0),
    Sketcher.Constraint("Vertical", 1),
    Sketcher.Constraint("Horizontal", 2),
    Sketcher.Constraint("Vertical", 3),
    Sketcher.Constraint("PointOnObject", 0, 2, -1),
    Sketcher.Constraint("DistanceX", 0, 2, 0, 1, Q("16.4 mm")),
    Sketcher.Constraint("DistanceX", -1, 1, 0, 2, Q("10.7 mm")),
    Sketcher.Constraint("DistanceY", 1, 1, 1, 2, Q("1.5875 mm")),
])
sketch3.setExpression("Constraints[9]", "Params.sketch3_width")
pocket2 = body.newObject("PartDesign::Pocket", "Pocket001")
pocket2.Profile = sketch3
pocket2.setExpression("Length", "Params.pocket2_length")
pocket2.Reversed = True
doc.recompute()

fillet2 = body.newObject("PartDesign::Fillet", "Fillet001")
fillet2.Base = (pocket2, edges_at(pocket2, [(10.7, 40.119, 0.794), (27.1, 40.119, 0.794)]))
fillet2.setExpression("Radius", "Params.fillet2_radius")

sketch4 = body.newObject("Sketcher::SketchObject", "Sketch003")
sketch4.AttachmentSupport = (doc.getObject("XY_Plane"), [""])
sketch4.MapMode = "FlatFace"
sketch4.AttachmentOffset = App.Placement(App.Vector(0, 0, 1.5875), App.Rotation())
sketch4.addGeometry([
    Part.LineSegment(App.Vector(-48, 48, 0), App.Vector(-48, 42, 0)),
    Part.LineSegment(App.Vector(-48, 42, 0), App.Vector(-42, 42, 0)),
    Part.LineSegment(App.Vector(-42, 42, 0), App.Vector(-42, 48, 0)),
    Part.LineSegment(App.Vector(-42, 48, 0), App.Vector(-48, 48, 0)),
    Part.LineSegment(App.Vector(-48, -42, 0), App.Vector(-48, -48, 0)),
    Part.LineSegment(App.Vector(-48, -48, 0), App.Vector(-42, -48, 0)),
    Part.LineSegment(App.Vector(-42, -48, 0), App.Vector(-42, -42, 0)),
    Part.LineSegment(App.Vector(-42, -42, 0), App.Vector(-48, -42, 0)),
    Part.LineSegment(App.Vector(42, -42, 0), App.Vector(42, -48, 0)),
    Part.LineSegment(App.Vector(42, -48, 0), App.Vector(48, -48, 0)),
    Part.LineSegment(App.Vector(48, -48, 0), App.Vector(48, -42, 0)),
    Part.LineSegment(App.Vector(48, -42, 0), App.Vector(42, -42, 0)),
    Part.LineSegment(App.Vector(42, 48, 0), App.Vector(42, 42, 0)),
    Part.LineSegment(App.Vector(42, 42, 0), App.Vector(48, 42, 0)),
    Part.LineSegment(App.Vector(48, 42, 0), App.Vector(48, 48, 0)),
    Part.LineSegment(App.Vector(48, 48, 0), App.Vector(42, 48, 0)),
], False)
sketch4.addConstraint([
    Sketcher.Constraint("Coincident", 0, 2, 1, 1),
    Sketcher.Constraint("Coincident", 1, 2, 2, 1),
    Sketcher.Constraint("Coincident", 2, 2, 3, 1),
    Sketcher.Constraint("Coincident", 3, 2, 0, 1),
    Sketcher.Constraint("Coincident", 4, 2, 5, 1),
    Sketcher.Constraint("Coincident", 5, 2, 6, 1),
    Sketcher.Constraint("Coincident", 6, 2, 7, 1),
    Sketcher.Constraint("Coincident", 7, 2, 4, 1),
    Sketcher.Constraint("Coincident", 8, 2, 9, 1),
    Sketcher.Constraint("Coincident", 9, 2, 10, 1),
    Sketcher.Constraint("Coincident", 10, 2, 11, 1),
    Sketcher.Constraint("Coincident", 11, 2, 8, 1),
    Sketcher.Constraint("Coincident", 12, 2, 13, 1),
    Sketcher.Constraint("Coincident", 13, 2, 14, 1),
    Sketcher.Constraint("Coincident", 14, 2, 15, 1),
    Sketcher.Constraint("Coincident", 15, 2, 12, 1),
    Sketcher.Constraint("Vertical", 0),
    Sketcher.Constraint("Horizontal", 1),
    Sketcher.Constraint("Vertical", 2),
    Sketcher.Constraint("Horizontal", 3),
    Sketcher.Constraint("Vertical", 4),
    Sketcher.Constraint("Horizontal", 5),
    Sketcher.Constraint("Vertical", 6),
    Sketcher.Constraint("Horizontal", 7),
    Sketcher.Constraint("Vertical", 8),
    Sketcher.Constraint("Horizontal", 9),
    Sketcher.Constraint("Vertical", 10),
    Sketcher.Constraint("Horizontal", 11),
    Sketcher.Constraint("Vertical", 12),
    Sketcher.Constraint("Horizontal", 13),
    Sketcher.Constraint("Vertical", 14),
    Sketcher.Constraint("Horizontal", 15),
    Sketcher.Constraint("Symmetric", 2, 2, 8, 2, -1, 1),
    Sketcher.Constraint("Symmetric", 0, 2, 10, 2, -1, 1),
    Sketcher.Constraint("Symmetric", 6, 2, 12, 2, -1, 1),
    Sketcher.Constraint("Symmetric", 4, 2, 14, 2, -1, 1),
    Sketcher.Constraint("Symmetric", 5, 2, 8, 2, -2),
    Sketcher.Constraint("Symmetric", 7, 2, 10, 2, -2),
    Sketcher.Constraint("Equal", 15, 0),
    Sketcher.Constraint("DistanceX", 1, 1, 1, 2, Q("6.5 mm")),
    Sketcher.Constraint("DistanceX", 0, 2, -1, 1, Q("48 mm")),
    Sketcher.Constraint("DistanceY", -1, 1, 2, 2, Q("48 mm")),
])
sketch4.setExpression("Constraints[39]", "Params.sketch4_width")
pad2 = body.newObject("PartDesign::Pad", "Pad001")
pad2.Profile = sketch4
pad2.setExpression("Length", "Params.pad2_length")

sketch5 = body.newObject("Sketcher::SketchObject", "Sketch004")
sketch5.AttachmentSupport = (doc.getObject("XY_Plane"), [""])
sketch5.MapMode = "FlatFace"
sketch5.addGeometry([
    Part.LineSegment(App.Vector(65, 65, 0), App.Vector(65, -65, 0)),
    Part.LineSegment(App.Vector(65, -65, 0), App.Vector(-65, -65, 0)),
    Part.LineSegment(App.Vector(-65, -65, 0), App.Vector(-65, 65, 0)),
    Part.LineSegment(App.Vector(-65, 65, 0), App.Vector(65, 65, 0)),
    Part.LineSegment(App.Vector(-50, -50, 0), App.Vector(50, -50, 0)),
    Part.LineSegment(App.Vector(50, -50, 0), App.Vector(50, 50, 0)),
    Part.LineSegment(App.Vector(50, 50, 0), App.Vector(-50, 50, 0)),
    Part.LineSegment(App.Vector(-50, 50, 0), App.Vector(-50, -50, 0)),
], False)
sketch5.addConstraint([
    Sketcher.Constraint("Coincident", 0, 2, 1, 1),
    Sketcher.Constraint("Coincident", 1, 2, 2, 1),
    Sketcher.Constraint("Coincident", 2, 2, 3, 1),
    Sketcher.Constraint("Coincident", 3, 2, 0, 1),
    Sketcher.Constraint("Coincident", 4, 2, 5, 1),
    Sketcher.Constraint("Coincident", 5, 2, 6, 1),
    Sketcher.Constraint("Coincident", 6, 2, 7, 1),
    Sketcher.Constraint("Coincident", 7, 2, 4, 1),
    Sketcher.Constraint("Vertical", 0),
    Sketcher.Constraint("Horizontal", 1),
    Sketcher.Constraint("Vertical", 2),
    Sketcher.Constraint("Horizontal", 3),
    Sketcher.Constraint("Horizontal", 4),
    Sketcher.Constraint("Vertical", 5),
    Sketcher.Constraint("Horizontal", 6),
    Sketcher.Constraint("Vertical", 7),
    Sketcher.Constraint("Symmetric", 0, 2, 2, 2, -1, 1),
    Sketcher.Constraint("Symmetric", 4, 2, 6, 2, -1, 1),
    Sketcher.Constraint("Equal", 3, 0),
    Sketcher.Constraint("DistanceX", 4, 1, 4, 2, Q("99 mm")),
    Sketcher.Constraint("DistanceY", 5, 1, 5, 2, Q("100 mm")),
    Sketcher.Constraint("DistanceX", 1, 2, 1, 1, Q("130.286 mm")),
])
sketch5.setExpression("Constraints[19]", "Params.sketch5_width")
sketch5.setExpression("Constraints[20]", "Params.sketch5_height")
pocket3 = body.newObject("PartDesign::Pocket", "Pocket002")
pocket3.Profile = sketch5
pocket3.Type = "ThroughAll"
pocket3.Reversed = True

doc.recompute()
